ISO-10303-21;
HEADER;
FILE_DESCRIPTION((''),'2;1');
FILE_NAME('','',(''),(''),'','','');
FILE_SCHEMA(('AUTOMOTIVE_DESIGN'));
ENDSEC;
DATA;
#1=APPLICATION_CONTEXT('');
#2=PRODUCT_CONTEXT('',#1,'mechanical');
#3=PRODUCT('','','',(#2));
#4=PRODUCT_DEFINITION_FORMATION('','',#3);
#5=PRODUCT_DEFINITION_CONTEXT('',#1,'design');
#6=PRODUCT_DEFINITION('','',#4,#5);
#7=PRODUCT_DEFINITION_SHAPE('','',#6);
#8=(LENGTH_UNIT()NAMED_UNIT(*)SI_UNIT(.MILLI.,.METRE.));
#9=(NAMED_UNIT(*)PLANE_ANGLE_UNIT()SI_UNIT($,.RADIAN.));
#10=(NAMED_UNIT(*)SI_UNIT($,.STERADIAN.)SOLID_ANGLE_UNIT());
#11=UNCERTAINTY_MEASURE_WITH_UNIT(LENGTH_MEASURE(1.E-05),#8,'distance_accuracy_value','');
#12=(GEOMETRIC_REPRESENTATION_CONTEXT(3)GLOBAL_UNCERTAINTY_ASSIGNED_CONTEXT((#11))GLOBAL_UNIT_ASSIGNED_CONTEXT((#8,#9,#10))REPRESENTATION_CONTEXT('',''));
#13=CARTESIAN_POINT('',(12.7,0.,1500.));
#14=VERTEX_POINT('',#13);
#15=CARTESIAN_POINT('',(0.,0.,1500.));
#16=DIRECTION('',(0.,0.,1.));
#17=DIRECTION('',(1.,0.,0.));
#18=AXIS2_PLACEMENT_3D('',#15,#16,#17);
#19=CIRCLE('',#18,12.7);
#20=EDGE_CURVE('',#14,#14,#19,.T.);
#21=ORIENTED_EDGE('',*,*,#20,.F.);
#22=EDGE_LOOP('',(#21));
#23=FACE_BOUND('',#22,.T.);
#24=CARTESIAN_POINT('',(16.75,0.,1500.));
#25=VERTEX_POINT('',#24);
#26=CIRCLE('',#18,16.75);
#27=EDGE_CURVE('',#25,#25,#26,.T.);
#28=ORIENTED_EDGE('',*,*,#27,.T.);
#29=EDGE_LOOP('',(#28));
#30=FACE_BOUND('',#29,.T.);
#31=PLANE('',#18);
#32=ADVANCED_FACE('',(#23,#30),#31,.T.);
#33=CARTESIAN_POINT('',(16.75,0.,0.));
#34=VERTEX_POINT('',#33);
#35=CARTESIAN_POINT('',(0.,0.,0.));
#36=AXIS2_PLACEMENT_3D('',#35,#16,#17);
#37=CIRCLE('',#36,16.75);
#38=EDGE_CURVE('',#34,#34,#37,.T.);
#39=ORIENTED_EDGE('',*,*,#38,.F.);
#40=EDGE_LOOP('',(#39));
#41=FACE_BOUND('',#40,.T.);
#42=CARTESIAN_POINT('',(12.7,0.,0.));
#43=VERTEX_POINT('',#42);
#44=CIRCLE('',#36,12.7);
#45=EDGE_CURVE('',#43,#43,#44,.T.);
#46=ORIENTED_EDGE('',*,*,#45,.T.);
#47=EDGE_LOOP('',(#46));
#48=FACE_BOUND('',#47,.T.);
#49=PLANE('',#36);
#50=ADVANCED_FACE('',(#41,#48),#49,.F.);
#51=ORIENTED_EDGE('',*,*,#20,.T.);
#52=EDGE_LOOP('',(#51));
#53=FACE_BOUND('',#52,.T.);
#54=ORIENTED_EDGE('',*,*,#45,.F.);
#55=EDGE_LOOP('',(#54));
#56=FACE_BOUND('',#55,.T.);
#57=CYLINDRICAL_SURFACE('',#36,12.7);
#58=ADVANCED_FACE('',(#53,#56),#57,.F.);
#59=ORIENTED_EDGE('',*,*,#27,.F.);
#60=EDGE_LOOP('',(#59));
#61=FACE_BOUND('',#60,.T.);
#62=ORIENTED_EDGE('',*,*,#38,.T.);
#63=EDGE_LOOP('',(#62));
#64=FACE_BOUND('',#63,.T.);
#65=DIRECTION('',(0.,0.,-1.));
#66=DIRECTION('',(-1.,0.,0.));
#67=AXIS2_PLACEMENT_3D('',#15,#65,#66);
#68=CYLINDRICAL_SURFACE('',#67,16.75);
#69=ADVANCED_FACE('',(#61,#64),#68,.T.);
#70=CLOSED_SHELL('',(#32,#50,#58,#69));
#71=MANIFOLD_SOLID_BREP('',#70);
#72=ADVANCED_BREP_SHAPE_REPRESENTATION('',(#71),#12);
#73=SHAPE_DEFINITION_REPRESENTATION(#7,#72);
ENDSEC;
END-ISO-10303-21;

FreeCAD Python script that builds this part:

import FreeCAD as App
import Part
import Sketcher

doc = App.newDocument("Part")
body = doc.addObject("PartDesign::Body", "Body")

sketch1 = body.newObject("Sketcher::SketchObject", "Sketch")
sketch1.AttachmentSupport = (doc.getObject("XY_Plane"), [""])
sketch1.MapMode = "FlatFace"
sketch1.addGeometry(Part.Circle(App.Vector(0, 0, 0), App.Vector(0, 0, 1), 17), False)
sketch1.addConstraint(Sketcher.Constraint("Coincident", 0, 3, -1, 1))
sketch1.addConstraint(Sketcher.Constraint("Diameter", 0, 33.5))
pad1 = body.newObject("PartDesign::Pad", "Pad")
pad1.Profile = sketch1
pad1.Length = 1500

sketch2 = body.newObject("Sketcher::SketchObject", "Sketch001")
sketch2.AttachmentSupport = (doc.getObject("XY_Plane"), [""])
sketch2.MapMode = "FlatFace"
sketch2.AttachmentOffset = App.Placement(App.Vector(0, 0, 1500), App.Rotation())
sketch2.addGeometry(Part.Circle(App.Vector(0, 0, 0), App.Vector(0, 0, 1), 13), False)
sketch2.addConstraint(Sketcher.Constraint("Coincident", 0, 3, -1, 1))
sketch2.addConstraint(Sketcher.Constraint("Diameter", 0, 25.4))
pocket1 = body.newObject("PartDesign::Pocket", "Pocket")
pocket1.Profile = sketch2
pocket1.Length = 1500

doc.recompute()
